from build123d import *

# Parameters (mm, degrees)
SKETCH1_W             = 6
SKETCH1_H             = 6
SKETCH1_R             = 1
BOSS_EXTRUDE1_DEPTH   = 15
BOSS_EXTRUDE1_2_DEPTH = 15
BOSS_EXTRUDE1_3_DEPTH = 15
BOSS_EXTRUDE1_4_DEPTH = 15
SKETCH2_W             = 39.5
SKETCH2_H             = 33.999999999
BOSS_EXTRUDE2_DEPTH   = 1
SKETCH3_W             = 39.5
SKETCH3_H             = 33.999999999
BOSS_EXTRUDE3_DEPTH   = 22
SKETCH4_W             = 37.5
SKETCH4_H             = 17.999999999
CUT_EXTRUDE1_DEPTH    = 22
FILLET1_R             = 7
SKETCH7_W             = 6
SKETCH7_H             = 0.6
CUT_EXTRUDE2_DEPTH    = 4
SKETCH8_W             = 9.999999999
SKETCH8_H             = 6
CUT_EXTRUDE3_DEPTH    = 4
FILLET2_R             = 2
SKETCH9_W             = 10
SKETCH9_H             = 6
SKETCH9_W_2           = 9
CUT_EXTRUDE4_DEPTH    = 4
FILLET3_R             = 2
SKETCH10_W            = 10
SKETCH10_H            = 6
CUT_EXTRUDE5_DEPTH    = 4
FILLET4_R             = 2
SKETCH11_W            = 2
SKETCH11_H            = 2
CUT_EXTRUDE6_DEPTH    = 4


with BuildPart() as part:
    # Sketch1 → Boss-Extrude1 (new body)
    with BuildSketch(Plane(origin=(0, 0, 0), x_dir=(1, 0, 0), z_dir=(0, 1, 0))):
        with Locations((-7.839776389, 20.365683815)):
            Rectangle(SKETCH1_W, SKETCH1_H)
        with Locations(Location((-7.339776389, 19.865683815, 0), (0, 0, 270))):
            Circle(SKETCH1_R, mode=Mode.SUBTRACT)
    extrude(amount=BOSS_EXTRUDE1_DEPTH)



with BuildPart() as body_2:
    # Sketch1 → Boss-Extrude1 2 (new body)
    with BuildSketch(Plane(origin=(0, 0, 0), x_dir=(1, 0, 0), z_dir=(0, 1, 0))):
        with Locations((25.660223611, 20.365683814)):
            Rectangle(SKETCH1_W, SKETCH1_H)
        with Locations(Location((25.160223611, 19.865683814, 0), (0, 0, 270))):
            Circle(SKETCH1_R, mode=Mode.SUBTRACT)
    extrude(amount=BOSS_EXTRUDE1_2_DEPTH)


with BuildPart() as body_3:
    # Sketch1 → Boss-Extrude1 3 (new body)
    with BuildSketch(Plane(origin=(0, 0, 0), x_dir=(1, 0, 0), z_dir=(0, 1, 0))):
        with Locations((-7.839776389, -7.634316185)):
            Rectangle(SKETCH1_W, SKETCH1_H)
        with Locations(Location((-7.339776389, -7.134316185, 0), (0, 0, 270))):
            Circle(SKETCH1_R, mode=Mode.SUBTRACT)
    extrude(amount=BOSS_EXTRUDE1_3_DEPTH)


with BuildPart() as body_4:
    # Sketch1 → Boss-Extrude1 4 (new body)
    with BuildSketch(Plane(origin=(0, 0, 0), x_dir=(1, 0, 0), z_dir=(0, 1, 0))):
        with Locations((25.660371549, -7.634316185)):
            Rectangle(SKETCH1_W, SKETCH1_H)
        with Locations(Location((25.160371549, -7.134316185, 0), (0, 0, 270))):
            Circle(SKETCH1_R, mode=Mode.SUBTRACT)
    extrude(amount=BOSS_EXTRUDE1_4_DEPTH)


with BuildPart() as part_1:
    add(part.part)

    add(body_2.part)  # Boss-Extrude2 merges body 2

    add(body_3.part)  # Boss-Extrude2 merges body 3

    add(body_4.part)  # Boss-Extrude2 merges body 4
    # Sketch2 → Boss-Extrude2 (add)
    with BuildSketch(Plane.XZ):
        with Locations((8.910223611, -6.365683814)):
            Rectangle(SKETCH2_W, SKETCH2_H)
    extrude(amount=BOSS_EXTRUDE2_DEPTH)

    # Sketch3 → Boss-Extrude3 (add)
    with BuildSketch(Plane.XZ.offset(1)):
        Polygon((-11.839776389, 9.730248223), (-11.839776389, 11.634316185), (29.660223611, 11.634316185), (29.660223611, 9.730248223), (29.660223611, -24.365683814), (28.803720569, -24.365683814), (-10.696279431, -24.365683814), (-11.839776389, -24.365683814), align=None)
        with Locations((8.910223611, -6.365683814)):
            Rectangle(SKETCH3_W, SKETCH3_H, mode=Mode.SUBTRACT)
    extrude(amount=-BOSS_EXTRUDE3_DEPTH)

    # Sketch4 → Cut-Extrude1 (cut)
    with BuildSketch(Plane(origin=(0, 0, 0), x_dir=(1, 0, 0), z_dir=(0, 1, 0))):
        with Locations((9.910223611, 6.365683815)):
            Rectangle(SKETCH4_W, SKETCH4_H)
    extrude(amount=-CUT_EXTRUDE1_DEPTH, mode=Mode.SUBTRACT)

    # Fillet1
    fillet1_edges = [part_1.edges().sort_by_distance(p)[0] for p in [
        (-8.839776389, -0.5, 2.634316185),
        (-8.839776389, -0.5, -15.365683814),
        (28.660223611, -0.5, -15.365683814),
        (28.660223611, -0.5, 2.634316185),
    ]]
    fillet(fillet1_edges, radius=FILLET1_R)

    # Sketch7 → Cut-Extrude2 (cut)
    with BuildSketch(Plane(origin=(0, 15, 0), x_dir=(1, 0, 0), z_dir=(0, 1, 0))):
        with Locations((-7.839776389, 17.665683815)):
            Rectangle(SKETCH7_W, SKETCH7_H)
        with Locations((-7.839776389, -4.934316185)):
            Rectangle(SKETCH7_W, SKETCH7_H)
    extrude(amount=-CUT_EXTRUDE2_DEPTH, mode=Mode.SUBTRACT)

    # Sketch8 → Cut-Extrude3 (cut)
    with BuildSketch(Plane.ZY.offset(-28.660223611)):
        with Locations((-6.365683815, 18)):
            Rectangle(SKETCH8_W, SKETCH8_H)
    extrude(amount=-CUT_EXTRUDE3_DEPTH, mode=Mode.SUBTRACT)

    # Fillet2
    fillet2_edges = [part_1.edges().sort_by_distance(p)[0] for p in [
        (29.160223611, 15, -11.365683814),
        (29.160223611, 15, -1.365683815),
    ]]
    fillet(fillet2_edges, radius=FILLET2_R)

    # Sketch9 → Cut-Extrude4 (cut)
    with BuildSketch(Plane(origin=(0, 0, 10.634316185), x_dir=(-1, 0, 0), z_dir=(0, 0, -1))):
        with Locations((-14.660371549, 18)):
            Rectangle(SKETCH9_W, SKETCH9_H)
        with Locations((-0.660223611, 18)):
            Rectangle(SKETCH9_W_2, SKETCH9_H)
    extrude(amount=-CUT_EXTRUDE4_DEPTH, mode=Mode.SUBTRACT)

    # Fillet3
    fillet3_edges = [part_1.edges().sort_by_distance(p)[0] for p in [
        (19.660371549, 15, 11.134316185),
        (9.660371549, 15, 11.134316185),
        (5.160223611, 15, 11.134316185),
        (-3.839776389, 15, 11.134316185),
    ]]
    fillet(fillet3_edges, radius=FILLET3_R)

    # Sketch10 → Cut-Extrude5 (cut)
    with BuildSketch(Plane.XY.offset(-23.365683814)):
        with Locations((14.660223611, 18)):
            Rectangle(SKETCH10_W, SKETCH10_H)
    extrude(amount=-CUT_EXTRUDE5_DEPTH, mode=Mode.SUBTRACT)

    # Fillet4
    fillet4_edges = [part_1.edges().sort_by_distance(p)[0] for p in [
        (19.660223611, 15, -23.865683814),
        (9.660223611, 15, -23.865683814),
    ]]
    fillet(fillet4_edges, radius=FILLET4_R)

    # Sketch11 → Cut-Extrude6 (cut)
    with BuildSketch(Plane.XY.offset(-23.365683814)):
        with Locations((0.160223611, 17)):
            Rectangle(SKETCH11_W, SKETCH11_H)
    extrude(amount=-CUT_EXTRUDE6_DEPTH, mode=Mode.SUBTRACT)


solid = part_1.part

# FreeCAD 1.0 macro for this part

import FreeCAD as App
import Part
import Sketcher
from FreeCAD import Vector
Q = App.Units.Quantity


def edges_at(feature, points):
    """Names of the edges that pass closest to the given points."""
    edges = feature.Shape.Edges
    near = lambda p: min(range(len(edges)), key=lambda i: edges[i].distToShape(Part.Vertex(*p))[0])
    return sorted({f"Edge{near(p) + 1}" for p in points})


def add_polygon(sketch, points):
    """Adds a closed chain of lines whose ends are joined by coincident constraints."""
    first, n = sketch.GeometryCount, len(points)
    for a, b in zip(points, points[1:] + points[:1]):
        sketch.addGeometry(Part.LineSegment(App.Vector(*a, 0), App.Vector(*b, 0)), False)
    for i in range(n):
        sketch.addConstraint(Sketcher.Constraint("Coincident", first + i, 2, first + (i + 1) % n, 1))

doc = App.newDocument("Part")
body = doc.addObject("PartDesign::Body", "Body")

# Sketch on XZ plane
sketch1 = body.newObject("Sketcher::SketchObject", "Sketch")
sketch1.AttachmentSupport = (doc.getObject("XZ_Plane"), [""])
sketch1.MapMode = "FlatFace"
add_polygon(sketch1, [(-10.839776, -23.365684), (-10.839776, -17.365684), (-4.839776, -17.365684), (-4.839776, -23.365684)])  # lines 0-3
sketch1.addGeometry(Part.Circle(Vector(-7.339776, -19.865684, 0), Vector(0, 0, 1), 1), False)  # 4
sketch1.addConstraint([
    Sketcher.Constraint("Vertical", 0),
    Sketcher.Constraint("Horizontal", 1),
    Sketcher.Constraint("Vertical", 2),
    Sketcher.Constraint("Horizontal", 3),
    Sketcher.Constraint("Equal", 3, 0),
    Sketcher.Constraint("Diameter", 4, Q("2 mm")),
    Sketcher.Constraint("DistanceX", 1, 1, 1, 2, Q("6 mm")),
    Sketcher.Constraint("DistanceX", 0, 2, 4, 3, Q("3.5 mm")),
    Sketcher.Constraint("DistanceY", 4, 3, 0, 2, Q("2.5 mm")),
    Sketcher.Constraint("DistanceX", 4, 3, -1, 1, Q("7.339776 mm")),
    Sketcher.Constraint("DistanceY", 4, 3, -1, 1, Q("19.865684 mm")),
])
pad1 = body.newObject("PartDesign::Pad", "Pad")
pad1.Profile = sketch1
pad1.Length = 15
pad1.Reversed = True
body2 = doc.addObject("PartDesign::Body", "Body001")

# Sketch on XZ plane
sketch2 = body2.newObject("Sketcher::SketchObject", "Sketch001")
sketch2.AttachmentSupport = (doc.getObject("XZ_Plane001"), [""])
sketch2.MapMode = "FlatFace"
add_polygon(sketch2, [(22.660224, -23.365684), (22.660224, -17.365684), (28.660224, -17.365684), (28.660224, -23.365684)])  # lines 0-3
sketch2.addGeometry(Part.Circle(Vector(25.160224, -19.865684, 0), Vector(0, 0, 1), 1), False)  # 4
sketch2.addConstraint([
    Sketcher.Constraint("Vertical", 0),
    Sketcher.Constraint("Horizontal", 1),
    Sketcher.Constraint("Vertical", 2),
    Sketcher.Constraint("Horizontal", 3),
    Sketcher.Constraint("Equal", 3, 0),
    Sketcher.Constraint("Diameter", 4, Q("2 mm")),
    Sketcher.Constraint("DistanceX", 1, 1, 1, 2, Q("6 mm")),
    Sketcher.Constraint("DistanceX", 0, 2, 4, 3, Q("2.5 mm")),
    Sketcher.Constraint("DistanceY", 4, 3, 0, 2, Q("2.5 mm")),
    Sketcher.Constraint("DistanceX", -1, 1, 4, 3, Q("25.160224 mm")),
    Sketcher.Constraint("DistanceY", 4, 3, -1, 1, Q("19.865684 mm")),
])
pad2 = body2.newObject("PartDesign::Pad", "Pad001")
pad2.Profile = sketch2
pad2.Length = 15
pad2.Reversed = True
body3 = doc.addObject("PartDesign::Body", "Body002")

# Sketch on XZ plane
sketch3 = body3.newObject("Sketcher::SketchObject", "Sketch002")
sketch3.AttachmentSupport = (doc.getObject("XZ_Plane002"), [""])
sketch3.MapMode = "FlatFace"
add_polygon(sketch3, [(-10.839776, 4.634316), (-10.839776, 10.634316), (-4.839776, 10.634316), (-4.839776, 4.634316)])  # lines 0-3
sketch3.addGeometry(Part.Circle(Vector(-7.339776, 7.134316, 0), Vector(0, 0, 1), 1), False)  # 4
sketch3.addConstraint([
    Sketcher.Constraint("Vertical", 0),
    Sketcher.Constraint("Horizontal", 1),
    Sketcher.Constraint("Vertical", 2),
    Sketcher.Constraint("Horizontal", 3),
    Sketcher.Constraint("Equal", 3, 0),
    Sketcher.Constraint("Diameter", 4, Q("2 mm")),
    Sketcher.Constraint("DistanceX", 1, 1, 1, 2, Q("6 mm")),
    Sketcher.Constraint("DistanceX", 0, 2, 4, 3, Q("3.5 mm")),
    Sketcher.Constraint("DistanceY", 4, 3, 0, 2, Q("3.5 mm")),
    Sketcher.Constraint("DistanceX", 4, 3, -1, 1, Q("7.339776 mm")),
    Sketcher.Constraint("DistanceY", -1, 1, 4, 3, Q("7.134316 mm")),
])
pad3 = body3.newObject("PartDesign::Pad", "Pad002")
pad3.Profile = sketch3
pad3.Length = 15
pad3.Reversed = True
body4 = doc.addObject("PartDesign::Body", "Body003")

# Sketch on XZ plane
sketch4 = body4.newObject("Sketcher::SketchObject", "Sketch003")
sketch4.AttachmentSupport = (doc.getObject("XZ_Plane003"), [""])
sketch4.MapMode = "FlatFace"
add_polygon(sketch4, [(22.660372, 4.634316), (22.660372, 10.634316), (28.660372, 10.634316), (28.660372, 4.634316)])  # lines 0-3
sketch4.addGeometry(Part.Circle(Vector(25.160372, 7.134316, 0), Vector(0, 0, 1), 1), False)  # 4
sketch4.addConstraint([
    Sketcher.Constraint("Vertical", 0),
    Sketcher.Constraint("Horizontal", 1),
    Sketcher.Constraint("Vertical", 2),
    Sketcher.Constraint("Horizontal", 3),
    Sketcher.Constraint("Equal", 3, 0),
    Sketcher.Constraint("Diameter", 4, Q("2 mm")),
    Sketcher.Constraint("DistanceX", 1, 1, 1, 2, Q("6 mm")),
    Sketcher.Constraint("DistanceX", 0, 2, 4, 3, Q("2.5 mm")),
    Sketcher.Constraint("DistanceY", 4, 3, 0, 2, Q("3.5 mm")),
    Sketcher.Constraint("DistanceX", -1, 1, 4, 3, Q("25.160372 mm")),
    Sketcher.Constraint("DistanceY", -1, 1, 4, 3, Q("7.134316 mm")),
])
pad4 = body4.newObject("PartDesign::Pad", "Pad003")
pad4.Profile = sketch4
pad4.Length = 15
pad4.Reversed = True
body.AllowCompound = True
doc.recompute()

boolean = body.newObject("PartDesign::Boolean", "Boolean")
boolean.Type = "Fuse"
boolean.addObjects([body2])
doc.recompute()

boolean2 = body.newObject("PartDesign::Boolean", "Boolean001")
boolean2.Type = "Fuse"
boolean2.addObjects([body3])
doc.recompute()

boolean3 = body.newObject("PartDesign::Boolean", "Boolean002")
boolean3.Type = "Fuse"
boolean3.addObjects([body4])

# Sketch on XZ plane
sketch5 = body.newObject("Sketcher::SketchObject", "Sketch004")
sketch5.AttachmentSupport = (doc.getObject("XZ_Plane"), [""])
sketch5.MapMode = "FlatFace"
add_polygon(sketch5, [(-10.839776, 10.634316), (-10.839776, -23.365684), (28.660224, -23.365684), (28.660224, 10.634316)])  # lines 0-3
sketch5.addConstraint([
    Sketcher.Constraint("Vertical", 0),
    Sketcher.Constraint("Horizontal", 1),
    Sketcher.Constraint("Vertical", 2),
    Sketcher.Constraint("Horizontal", 3),
    Sketcher.Constraint("DistanceY", 0, 2, 0, 1, Q("34 mm")),
    Sketcher.Constraint("DistanceX", 1, 1, 1, 2, Q("39.5 mm")),
    Sketcher.Constraint("DistanceX", 0, 2, -1, 1, Q("10.839776 mm")),
    Sketcher.Constraint("DistanceY", 0, 2, -1, 1, Q("23.365684 mm")),
])
pad5 = body.newObject("PartDesign::Pad", "Pad004")
pad5.Profile = sketch5
pad5.Length = 1

# Sketch on XZ plane
sketch6 = body.newObject("Sketcher::SketchObject", "Sketch005")
sketch6.AttachmentSupport = (doc.getObject("XZ_Plane"), [""])
sketch6.MapMode = "FlatFace"
sketch6.AttachmentOffset = App.Placement(Vector(0, 0, 1), App.Rotation())
add_polygon(sketch6, [(-11.839776, 11.634316), (-11.839776, -24.365684), (29.660224, -24.365684), (29.660224, 11.634316)])  # lines 0-3
add_polygon(sketch6, [(-10.839776, -23.365684), (-10.839776, 10.634316), (28.660224, 10.634316), (28.660224, -23.365684)])  # lines 4-7
sketch6.addConstraint([
    Sketcher.Constraint("Vertical", 0),
    Sketcher.Constraint("Horizontal", 1),
    Sketcher.Constraint("Vertical", 2),
    Sketcher.Constraint("Horizontal", 3),
    Sketcher.Constraint("Vertical", 4),
    Sketcher.Constraint("Horizontal", 5),
    Sketcher.Constraint("Vertical", 6),
    Sketcher.Constraint("Horizontal", 7),
    Sketcher.Constraint("DistanceY", 0, 2, 0, 1, Q("36 mm")),
    Sketcher.Constraint("DistanceY", 4, 1, 4, 2, Q("34 mm")),
    Sketcher.Constraint("DistanceX", 1, 1, 1, 2, Q("41.5 mm")),
    Sketcher.Constraint("DistanceX", 5, 1, 5, 2, Q("39.5 mm")),
    Sketcher.Constraint("DistanceX", 3, 2, 4, 2, Q("1 mm")),
    Sketcher.Constraint("DistanceY", 4, 2, 3, 2, Q("1 mm")),
    Sketcher.Constraint("DistanceX", 0, 2, -1, 1, Q("11.839776 mm")),
    Sketcher.Constraint("DistanceY", 0, 2, -1, 1, Q("24.365684 mm")),
])
pad6 = body.newObject("PartDesign::Pad", "Pad005")
pad6.Profile = sketch6
pad6.Length = 22
pad6.Reversed = True

# Sketch on XZ plane
sketch7 = body.newObject("Sketcher::SketchObject", "Sketch006")
sketch7.AttachmentSupport = (doc.getObject("XZ_Plane"), [""])
sketch7.MapMode = "FlatFace"
add_polygon(sketch7, [(-8.839776, -15.365684), (-8.839776, 2.634316), (28.660224, 2.634316), (28.660224, -15.365684)])  # lines 0-3
sketch7.addConstraint([
    Sketcher.Constraint("Vertical", 0),
    Sketcher.Constraint("Horizontal", 1),
    Sketcher.Constraint("Vertical", 2),
    Sketcher.Constraint("Horizontal", 3),
    Sketcher.Constraint("DistanceY", 0, 1, 0, 2, Q("18 mm")),
    Sketcher.Constraint("DistanceX", 1, 1, 1, 2, Q("37.5 mm")),
    Sketcher.Constraint("DistanceX", 0, 2, -1, 1, Q("8.839776 mm")),
    Sketcher.Constraint("DistanceY", -1, 1, 0, 2, Q("2.634316 mm")),
])
pocket1 = body.newObject("PartDesign::Pocket", "Pocket")
pocket1.Profile = sketch7
pocket1.Length = 22
pocket1.Reversed = True
doc.recompute()

fillet = body.newObject("PartDesign::Fillet", "Fillet")
fillet.Base = (pocket1, edges_at(pocket1, [
    (-8.84, -0.5, 2.634),
    (-8.84, -0.5, -15.366),
    (28.66, -0.5, -15.366),
    (28.66, -0.5, 2.634),
]))
fillet.Radius = 7

# Sketch on XZ plane
sketch8 = body.newObject("Sketcher::SketchObject", "Sketch007")
sketch8.AttachmentSupport = (doc.getObject("XZ_Plane"), [""])
sketch8.MapMode = "FlatFace"
sketch8.AttachmentOffset = App.Placement(Vector(0, 0, -15), App.Rotation())
add_polygon(sketch8, [(-10.839776, -17.965684), (-10.839776, -17.365684), (-4.839776, -17.365684), (-4.839776, -17.965684)])  # lines 0-3
add_polygon(sketch8, [(-10.839776, 4.634316), (-10.839776, 5.234316), (-4.839776, 5.234316), (-4.839776, 4.634316)])  # lines 4-7
sketch8.addConstraint([
    Sketcher.Constraint("Vertical", 0),
    Sketcher.Constraint("Horizontal", 1),
    Sketcher.Constraint("Vertical", 2),
    Sketcher.Constraint("Horizontal", 3),
    Sketcher.Constraint("Vertical", 4),
    Sketcher.Constraint("Horizontal", 5),
    Sketcher.Constraint("Vertical", 6),
    Sketcher.Constraint("Horizontal", 7),
    Sketcher.Constraint("Vertical", 3, 2, 4, 2),
    Sketcher.Constraint("Vertical", 2, 2, 5, 2),
    Sketcher.Constraint("Equal", 2, 4),
    Sketcher.Constraint("DistanceX", 1, 1, 1, 2, Q("6 mm")),
    Sketcher.Constraint("DistanceY", 0, 1, 0, 2, Q("0.6 mm")),
    Sketcher.Constraint("DistanceY", 1, 2, 6, 2, Q("22 mm")),
    Sketcher.Constraint("DistanceX", 0, 2, -1, 1, Q("10.839776 mm")),
    Sketcher.Constraint("DistanceY", 0, 2, -1, 1, Q("17.365684 mm")),
])
pocket2 = body.newObject("PartDesign::Pocket", "Pocket001")
pocket2.Profile = sketch8
pocket2.Length = 4
pocket2.Reversed = True

# Sketch on YZ plane
sketch9 = body.newObject("Sketcher::SketchObject", "Sketch008")
sketch9.AttachmentSupport = (doc.getObject("YZ_Plane"), [""])
sketch9.MapMode = "FlatFace"
sketch9.AttachmentOffset = App.Placement(Vector(0, 0, 28.660224), App.Rotation())
add_polygon(sketch9, [(21, -11.365684), (15, -11.365684), (15, -1.365684), (21, -1.365684)])  # lines 0-3
sketch9.addConstraint([
    Sketcher.Constraint("Horizontal", 0),
    Sketcher.Constraint("Vertical", 1),
    Sketcher.Constraint("Horizontal", 2),
    Sketcher.Constraint("Vertical", 3),
    Sketcher.Constraint("DistanceX", 0, 2, 0, 1, Q("6 mm")),
    Sketcher.Constraint("DistanceY", 1, 1, 1, 2, Q("10 mm")),
    Sketcher.Constraint("DistanceX", -1, 1, 0, 2, Q("15 mm")),
    Sketcher.Constraint("DistanceY", 0, 2, -1, 1, Q("11.365684 mm")),
])
pocket3 = body.newObject("PartDesign::Pocket", "Pocket002")
pocket3.Profile = sketch9
pocket3.Length = 4
pocket3.Reversed = True
doc.recompute()

fillet2 = body.newObject("PartDesign::Fillet", "Fillet001")
fillet2.Base = (pocket3, edges_at(pocket3, [(29.16, 15, -11.366), (29.16, 15, -1.366)]))
fillet2.Radius = 2

# Sketch on XY plane
sketch10 = body.newObject("Sketcher::SketchObject", "Sketch009")
sketch10.AttachmentSupport = (doc.getObject("XY_Plane"), [""])
sketch10.MapMode = "FlatFace"
sketch10.AttachmentOffset = App.Placement(Vector(0, 0, 10.634316), App.Rotation())
add_polygon(sketch10, [(19.660372, 21), (19.660372, 15), (9.660372, 15), (9.660372, 21)])  # lines 0-3
add_polygon(sketch10, [(5.160224, 21), (5.160224, 15), (-3.839776, 15), (-3.839776, 21)])  # lines 4-7
sketch10.addConstraint([
    Sketcher.Constraint("Vertical", 0),
    Sketcher.Constraint("Horizontal", 1),
    Sketcher.Constraint("Vertical", 2),
    Sketcher.Constraint("Horizontal", 3),
    Sketcher.Constraint("Vertical", 4),
    Sketcher.Constraint("Horizontal", 5),
    Sketcher.Constraint("Vertical", 6),
    Sketcher.Constraint("Horizontal", 7),
    Sketcher.Constraint("Horizontal", 1, 2, 4, 2),
    Sketcher.Constraint("Horizontal", 3, 2, 6, 2),
    Sketcher.Constraint("DistanceX", 1, 2, 1, 1, Q("10 mm")),
    Sketcher.Constraint("DistanceX", 5, 2, 5, 1, Q("9 mm")),
    Sketcher.Constraint("DistanceY", 0, 2, 0, 1, Q("6 mm")),
    Sketcher.Constraint("DistanceY", -1, 1, 0, 2, Q("15 mm")),
    Sketcher.Constraint("DistanceX", -1, 1, 0, 2, Q("19.660372 mm")),
    Sketcher.Constraint("DistanceX", -1, 1, 4, 2, Q("5.160224 mm")),
])
pocket4 = body.newObject("PartDesign::Pocket", "Pocket003")
pocket4.Profile = sketch10
pocket4.Length = 4
pocket4.Reversed = True
doc.recompute()

fillet3 = body.newObject("PartDesign::Fillet", "Fillet002")
fillet3.Base = (pocket4, edges_at(pocket4, [
    (19.66, 15, 11.134),
    (9.66, 15, 11.134),
    (5.16, 15, 11.134),
    (-3.84, 15, 11.134),
]))
fillet3.Radius = 2

# Sketch on XY plane
sketch11 = body.newObject("Sketcher::SketchObject", "Sketch010")
sketch11.AttachmentSupport = (doc.getObject("XY_Plane"), [""])
sketch11.MapMode = "FlatFace"
sketch11.AttachmentOffset = App.Placement(Vector(0, 0, -23.365684), App.Rotation())
add_polygon(sketch11, [(9.660224, 21), (9.660224, 15), (19.660224, 15), (19.660224, 21)])  # lines 0-3
sketch11.addConstraint([
    Sketcher.Constraint("Vertical", 0),
    Sketcher.Constraint("Horizontal", 1),
    Sketcher.Constraint("Vertical", 2),
    Sketcher.Constraint("Horizontal", 3),
    Sketcher.Constraint("DistanceX", 1, 1, 1, 2, Q("10 mm")),
    Sketcher.Constraint("DistanceY", 0, 2, 0, 1, Q("6 mm")),
    Sketcher.Constraint("DistanceY", -1, 1, 0, 2, Q("15 mm")),
    Sketcher.Constraint("DistanceX", -1, 1, 0, 2, Q("9.660224 mm")),
])
pocket5 = body.newObject("PartDesign::Pocket", "Pocket004")
pocket5.Profile = sketch11
pocket5.Length = 4
doc.recompute()

fillet4 = body.newObject("PartDesign::Fillet", "Fillet003")
fillet4.Base = (pocket5, edges_at(pocket5, [(19.66, 15, -23.866), (9.66, 15, -23.866)]))
fillet4.Radius = 2

# Sketch on XY plane
sketch12 = body.newObject("Sketcher::SketchObject", "Sketch011")
sketch12.AttachmentSupport = (doc.getObject("XY_Plane"), [""])
sketch12.MapMode = "FlatFace"
sketch12.AttachmentOffset = App.Placement(Vector(0, 0, -23.365684), App.Rotation())
add_polygon(sketch12, [(-0.839776, 18), (-0.839776, 16), (1.160224, 16), (1.160224, 18)])  # lines 0-3
sketch12.addConstraint([
    Sketcher.Constraint("Vertical", 0),
    Sketcher.Constraint("Horizontal", 1),
    Sketcher.Constraint("Vertical", 2),
    Sketcher.Constraint("Horizontal", 3),
    Sketcher.Constraint("Equal", 3, 0),
    Sketcher.Constraint("DistanceX", 1, 1, 1, 2, Q("2 mm")),
    Sketcher.Constraint("DistanceY", -1, 1, 0, 2, Q("16 mm")),
    Sketcher.Constraint("DistanceX", 0, 2, -1, 1, Q("0.839776 mm")),
])
pocket6 = body.newObject("PartDesign::Pocket", "Pocket005")
pocket6.Profile = sketch12
pocket6.Length = 4

doc.recompute()
